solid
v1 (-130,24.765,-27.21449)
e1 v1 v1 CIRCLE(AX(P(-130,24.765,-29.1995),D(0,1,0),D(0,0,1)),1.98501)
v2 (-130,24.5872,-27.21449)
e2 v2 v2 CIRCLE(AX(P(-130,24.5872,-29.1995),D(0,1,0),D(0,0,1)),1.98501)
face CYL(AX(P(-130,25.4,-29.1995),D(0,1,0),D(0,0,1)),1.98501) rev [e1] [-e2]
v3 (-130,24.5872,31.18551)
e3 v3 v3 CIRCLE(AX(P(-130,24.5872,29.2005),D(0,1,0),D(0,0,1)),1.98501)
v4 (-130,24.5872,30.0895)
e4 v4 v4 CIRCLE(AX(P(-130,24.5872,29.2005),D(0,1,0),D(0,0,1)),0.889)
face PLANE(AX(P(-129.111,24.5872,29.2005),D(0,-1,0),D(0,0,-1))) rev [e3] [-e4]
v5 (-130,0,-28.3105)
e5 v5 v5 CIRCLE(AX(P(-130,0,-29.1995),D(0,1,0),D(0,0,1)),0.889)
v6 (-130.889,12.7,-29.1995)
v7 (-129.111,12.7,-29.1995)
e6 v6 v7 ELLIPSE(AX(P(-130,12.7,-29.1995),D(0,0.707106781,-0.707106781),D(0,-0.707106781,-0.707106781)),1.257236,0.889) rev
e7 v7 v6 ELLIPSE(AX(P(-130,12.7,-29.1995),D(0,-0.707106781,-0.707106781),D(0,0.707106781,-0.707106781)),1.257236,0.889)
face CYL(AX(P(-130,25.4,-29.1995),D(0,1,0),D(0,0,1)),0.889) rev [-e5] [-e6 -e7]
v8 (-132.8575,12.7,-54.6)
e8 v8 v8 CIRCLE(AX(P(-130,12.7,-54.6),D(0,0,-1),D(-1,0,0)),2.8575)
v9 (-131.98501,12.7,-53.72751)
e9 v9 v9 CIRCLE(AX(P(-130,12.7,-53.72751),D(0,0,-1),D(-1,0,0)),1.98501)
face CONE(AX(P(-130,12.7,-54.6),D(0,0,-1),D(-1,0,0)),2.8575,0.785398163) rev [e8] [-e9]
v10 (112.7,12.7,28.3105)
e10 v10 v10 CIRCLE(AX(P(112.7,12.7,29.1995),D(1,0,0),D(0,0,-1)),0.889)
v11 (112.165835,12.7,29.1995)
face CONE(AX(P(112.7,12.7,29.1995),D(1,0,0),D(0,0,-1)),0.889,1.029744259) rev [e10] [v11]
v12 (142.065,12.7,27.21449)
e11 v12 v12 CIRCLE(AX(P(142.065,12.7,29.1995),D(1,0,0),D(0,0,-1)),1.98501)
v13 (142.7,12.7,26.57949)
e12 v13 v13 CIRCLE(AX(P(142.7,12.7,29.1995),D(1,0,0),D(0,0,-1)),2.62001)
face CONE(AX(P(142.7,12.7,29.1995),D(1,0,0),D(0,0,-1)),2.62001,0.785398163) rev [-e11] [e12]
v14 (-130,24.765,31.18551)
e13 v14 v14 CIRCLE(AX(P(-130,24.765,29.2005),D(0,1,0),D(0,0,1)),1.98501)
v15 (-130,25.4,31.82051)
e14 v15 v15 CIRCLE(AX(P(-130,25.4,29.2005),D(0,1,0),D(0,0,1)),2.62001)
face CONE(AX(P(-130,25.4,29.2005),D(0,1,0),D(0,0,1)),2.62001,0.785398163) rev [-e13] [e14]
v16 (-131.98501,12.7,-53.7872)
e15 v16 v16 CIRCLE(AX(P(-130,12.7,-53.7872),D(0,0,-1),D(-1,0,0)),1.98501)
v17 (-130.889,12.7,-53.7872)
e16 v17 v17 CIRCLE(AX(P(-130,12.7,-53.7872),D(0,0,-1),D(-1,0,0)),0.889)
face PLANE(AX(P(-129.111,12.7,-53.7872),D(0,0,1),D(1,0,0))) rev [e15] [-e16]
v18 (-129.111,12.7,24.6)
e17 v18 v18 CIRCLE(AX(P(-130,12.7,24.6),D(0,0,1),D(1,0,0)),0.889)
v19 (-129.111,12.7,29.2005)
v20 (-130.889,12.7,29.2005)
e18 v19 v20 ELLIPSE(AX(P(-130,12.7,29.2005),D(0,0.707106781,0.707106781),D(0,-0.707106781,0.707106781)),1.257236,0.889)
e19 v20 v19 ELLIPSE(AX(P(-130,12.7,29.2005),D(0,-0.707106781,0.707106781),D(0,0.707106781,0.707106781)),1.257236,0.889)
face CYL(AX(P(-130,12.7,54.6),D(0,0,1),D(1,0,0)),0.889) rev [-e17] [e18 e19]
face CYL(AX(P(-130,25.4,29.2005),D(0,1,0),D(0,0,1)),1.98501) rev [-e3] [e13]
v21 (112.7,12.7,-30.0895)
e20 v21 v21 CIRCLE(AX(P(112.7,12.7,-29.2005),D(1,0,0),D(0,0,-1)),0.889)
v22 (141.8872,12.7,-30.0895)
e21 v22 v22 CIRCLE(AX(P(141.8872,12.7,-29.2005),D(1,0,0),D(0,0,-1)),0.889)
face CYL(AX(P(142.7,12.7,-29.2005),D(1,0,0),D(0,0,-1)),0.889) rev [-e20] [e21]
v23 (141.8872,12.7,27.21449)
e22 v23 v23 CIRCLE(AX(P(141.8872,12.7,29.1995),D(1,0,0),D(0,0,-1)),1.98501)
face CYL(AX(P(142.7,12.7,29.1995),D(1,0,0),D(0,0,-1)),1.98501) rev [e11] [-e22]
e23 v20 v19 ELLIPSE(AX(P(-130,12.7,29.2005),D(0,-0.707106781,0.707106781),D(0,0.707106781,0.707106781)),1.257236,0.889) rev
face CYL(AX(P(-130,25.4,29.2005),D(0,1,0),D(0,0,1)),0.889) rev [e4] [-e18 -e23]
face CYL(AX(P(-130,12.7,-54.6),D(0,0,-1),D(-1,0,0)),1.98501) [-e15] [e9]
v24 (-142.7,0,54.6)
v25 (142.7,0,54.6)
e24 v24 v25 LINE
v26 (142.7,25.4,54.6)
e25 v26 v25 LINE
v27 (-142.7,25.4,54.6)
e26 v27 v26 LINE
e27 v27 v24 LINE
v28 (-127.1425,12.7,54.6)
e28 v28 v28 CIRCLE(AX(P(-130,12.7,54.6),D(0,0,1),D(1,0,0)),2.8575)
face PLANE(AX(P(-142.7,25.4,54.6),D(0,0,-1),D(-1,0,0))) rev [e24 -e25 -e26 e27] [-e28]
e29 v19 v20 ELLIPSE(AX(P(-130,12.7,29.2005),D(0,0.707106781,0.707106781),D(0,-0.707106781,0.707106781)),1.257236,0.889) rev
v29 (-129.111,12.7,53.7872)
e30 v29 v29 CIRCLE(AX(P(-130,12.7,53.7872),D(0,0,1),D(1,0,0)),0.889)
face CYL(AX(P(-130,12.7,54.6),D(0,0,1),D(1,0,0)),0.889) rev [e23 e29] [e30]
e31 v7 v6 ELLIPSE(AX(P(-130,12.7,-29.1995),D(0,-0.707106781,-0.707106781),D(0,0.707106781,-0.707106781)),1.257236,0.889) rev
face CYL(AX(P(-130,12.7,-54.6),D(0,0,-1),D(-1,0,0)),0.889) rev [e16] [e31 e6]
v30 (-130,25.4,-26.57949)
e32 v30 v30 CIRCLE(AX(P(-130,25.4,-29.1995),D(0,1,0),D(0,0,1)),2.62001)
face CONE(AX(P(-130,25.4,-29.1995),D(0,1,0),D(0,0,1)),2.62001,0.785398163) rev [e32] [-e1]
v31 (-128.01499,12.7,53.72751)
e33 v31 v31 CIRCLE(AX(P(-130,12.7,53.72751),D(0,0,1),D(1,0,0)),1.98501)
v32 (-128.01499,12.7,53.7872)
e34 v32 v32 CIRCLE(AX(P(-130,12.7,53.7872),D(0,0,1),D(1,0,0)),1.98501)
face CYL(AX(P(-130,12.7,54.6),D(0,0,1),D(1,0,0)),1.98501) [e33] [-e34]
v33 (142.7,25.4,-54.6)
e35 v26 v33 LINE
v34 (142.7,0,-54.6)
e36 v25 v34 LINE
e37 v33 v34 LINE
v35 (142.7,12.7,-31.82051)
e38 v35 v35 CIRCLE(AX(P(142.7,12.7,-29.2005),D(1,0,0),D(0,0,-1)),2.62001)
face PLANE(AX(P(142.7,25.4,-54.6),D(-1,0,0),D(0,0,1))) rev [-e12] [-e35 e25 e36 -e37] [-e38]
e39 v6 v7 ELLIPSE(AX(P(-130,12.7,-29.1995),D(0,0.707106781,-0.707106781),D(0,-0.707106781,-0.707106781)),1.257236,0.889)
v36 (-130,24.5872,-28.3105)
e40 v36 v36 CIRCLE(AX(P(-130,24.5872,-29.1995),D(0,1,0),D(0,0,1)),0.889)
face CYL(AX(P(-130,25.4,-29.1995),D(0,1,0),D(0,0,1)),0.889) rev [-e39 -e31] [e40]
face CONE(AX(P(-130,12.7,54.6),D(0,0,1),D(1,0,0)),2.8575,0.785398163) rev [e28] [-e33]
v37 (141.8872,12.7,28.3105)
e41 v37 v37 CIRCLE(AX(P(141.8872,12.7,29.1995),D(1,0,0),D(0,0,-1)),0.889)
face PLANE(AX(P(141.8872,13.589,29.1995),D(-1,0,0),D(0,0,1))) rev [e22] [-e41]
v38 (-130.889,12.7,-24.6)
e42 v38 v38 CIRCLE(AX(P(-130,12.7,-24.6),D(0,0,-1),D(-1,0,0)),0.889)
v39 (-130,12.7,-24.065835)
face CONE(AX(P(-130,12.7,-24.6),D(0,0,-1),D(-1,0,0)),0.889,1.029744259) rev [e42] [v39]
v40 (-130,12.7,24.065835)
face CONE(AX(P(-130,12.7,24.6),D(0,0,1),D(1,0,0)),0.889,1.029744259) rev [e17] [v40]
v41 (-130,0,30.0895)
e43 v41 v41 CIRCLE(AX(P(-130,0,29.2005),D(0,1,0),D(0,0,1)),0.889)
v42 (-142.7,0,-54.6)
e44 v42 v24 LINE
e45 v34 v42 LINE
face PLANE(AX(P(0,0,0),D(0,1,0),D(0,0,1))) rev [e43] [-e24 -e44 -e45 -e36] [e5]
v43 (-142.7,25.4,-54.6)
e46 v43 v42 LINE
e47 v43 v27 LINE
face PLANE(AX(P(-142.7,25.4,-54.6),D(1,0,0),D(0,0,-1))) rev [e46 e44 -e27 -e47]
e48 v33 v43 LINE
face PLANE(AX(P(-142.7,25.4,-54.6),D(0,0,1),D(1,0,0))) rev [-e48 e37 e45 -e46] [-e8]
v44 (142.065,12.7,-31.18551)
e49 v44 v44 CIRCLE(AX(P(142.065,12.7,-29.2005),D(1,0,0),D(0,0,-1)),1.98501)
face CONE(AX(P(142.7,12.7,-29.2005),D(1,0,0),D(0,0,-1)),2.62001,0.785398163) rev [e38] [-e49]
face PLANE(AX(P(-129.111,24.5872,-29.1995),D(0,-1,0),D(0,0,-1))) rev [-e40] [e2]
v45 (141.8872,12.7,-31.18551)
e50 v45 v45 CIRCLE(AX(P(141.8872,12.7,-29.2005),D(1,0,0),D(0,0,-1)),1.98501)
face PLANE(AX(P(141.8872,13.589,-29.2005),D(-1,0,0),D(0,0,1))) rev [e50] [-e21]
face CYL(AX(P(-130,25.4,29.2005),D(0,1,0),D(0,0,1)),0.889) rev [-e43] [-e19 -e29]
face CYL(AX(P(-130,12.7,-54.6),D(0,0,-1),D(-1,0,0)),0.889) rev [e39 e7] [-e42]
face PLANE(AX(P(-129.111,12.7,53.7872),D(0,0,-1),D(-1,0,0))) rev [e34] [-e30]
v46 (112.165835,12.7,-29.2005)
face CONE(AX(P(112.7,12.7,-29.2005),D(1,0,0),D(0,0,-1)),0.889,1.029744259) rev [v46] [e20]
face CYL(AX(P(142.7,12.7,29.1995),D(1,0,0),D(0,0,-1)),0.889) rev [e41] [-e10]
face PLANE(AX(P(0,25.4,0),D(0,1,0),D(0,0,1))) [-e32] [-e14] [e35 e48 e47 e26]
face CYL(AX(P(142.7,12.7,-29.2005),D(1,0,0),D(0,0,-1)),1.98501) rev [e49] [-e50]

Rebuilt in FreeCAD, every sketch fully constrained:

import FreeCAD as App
import Part
import Sketcher
from FreeCAD import Vector
Q = App.Units.Quantity

doc = App.newDocument("Part")
body = doc.addObject("PartDesign::Body", "Body")

sketch1 = body.newObject("Sketcher::SketchObject", "Sketch")
sketch1.AttachmentSupport = (doc.getObject("XZ_Plane"), [""])
sketch1.MapMode = "FlatFace"
sketch1.addGeometry(Part.LineSegment(Vector(-142.7, -54.6, 0), Vector(-142.7, 54.6, 0)), False)
sketch1.addGeometry(Part.LineSegment(Vector(-142.7, 54.6, 0), Vector(142.7, 54.6, 0)), False)
sketch1.addGeometry(Part.LineSegment(Vector(142.7, 54.6, 0), Vector(142.7, -54.6, 0)), False)
sketch1.addGeometry(Part.LineSegment(Vector(142.7, -54.6, 0), Vector(-142.7, -54.6, 0)), False)
sketch1.addConstraint(Sketcher.Constraint("Coincident", 0, 2, 1, 1))
sketch1.addConstraint(Sketcher.Constraint("Coincident", 1, 2, 2, 1))
sketch1.addConstraint(Sketcher.Constraint("Coincident", 2, 2, 3, 1))
sketch1.addConstraint(Sketcher.Constraint("Coincident", 3, 2, 0, 1))
sketch1.addConstraint(Sketcher.Constraint("Vertical", 0))
sketch1.addConstraint(Sketcher.Constraint("Horizontal", 1))
sketch1.addConstraint(Sketcher.Constraint("Vertical", 2))
sketch1.addConstraint(Sketcher.Constraint("Horizontal", 3))
sketch1.addConstraint(Sketcher.Constraint("Symmetric", 0, 2, 2, 2, -1, 1))
sketch1.addConstraint(Sketcher.Constraint("DistanceX", 1, 1, 1, 2, 285.4))
sketch1.addConstraint(Sketcher.Constraint("DistanceY", 0, 1, 0, 2, 109.2))
pad1 = body.newObject("PartDesign::Pad", "Pad")
pad1.Profile = sketch1
pad1.Length = 25.4
pad1.Reversed = True

sketch2 = body.newObject("Sketcher::SketchObject", "Sketch001")
sketch2.AttachmentSupport = (doc.getObject("YZ_Plane"), [""])
sketch2.MapMode = "FlatFace"
sketch2.AttachmentOffset = App.Placement(Vector(0, 0, -130), App.Rotation())
sketch2.addGeometry(Part.LineSegment(Vector(12.7, 24.065835, 0), Vector(12.7, 54.6, 0)), False)
sketch2.addGeometry(Part.LineSegment(Vector(12.7, 54.6, 0), Vector(9.8425, 54.6, 0)), False)
sketch2.addGeometry(Part.LineSegment(Vector(9.8425, 54.6, 0), Vector(10.71499, 53.72751, 0)), False)
sketch2.addGeometry(Part.LineSegment(Vector(10.71499, 53.72751, 0), Vector(10.71499, 53.7872, 0)), False)
sketch2.addGeometry(Part.LineSegment(Vector(10.71499, 53.7872, 0), Vector(11.811, 53.7872, 0)), False)
sketch2.addGeometry(Part.LineSegment(Vector(11.811, 53.7872, 0), Vector(11.811, 24.6, 0)), False)
sketch2.addGeometry(Part.LineSegment(Vector(11.811, 24.6, 0), Vector(12.7, 24.065835, 0)), False)
sketch2.addGeometry(Part.LineSegment(Vector(12.7, 54.6, 0), Vector(12.7, 24.065835, 0)), True)
sketch2.addConstraint(Sketcher.Constraint("Coincident", 0, 2, 1, 1))
sketch2.addConstraint(Sketcher.Constraint("Coincident", 1, 2, 2, 1))
sketch2.addConstraint(Sketcher.Constraint("Coincident", 2, 2, 3, 1))
sketch2.addConstraint(Sketcher.Constraint("Coincident", 3, 2, 4, 1))
sketch2.addConstraint(Sketcher.Constraint("Coincident", 4, 2, 5, 1))
sketch2.addConstraint(Sketcher.Constraint("Coincident", 5, 2, 6, 1))
sketch2.addConstraint(Sketcher.Constraint("Coincident", 6, 2, 0, 1))
sketch2.addConstraint(Sketcher.Constraint("Vertical", 0))
sketch2.addConstraint(Sketcher.Constraint("Horizontal", 1))
sketch2.addConstraint(Sketcher.Constraint("Vertical", 3))
sketch2.addConstraint(Sketcher.Constraint("Horizontal", 4))
sketch2.addConstraint(Sketcher.Constraint("Vertical", 5))
sketch2.addConstraint(Sketcher.Constraint("Vertical", 7))
sketch2.addConstraint(Sketcher.Constraint("Coincident", 7, 1, 0, 2))
sketch2.addConstraint(Sketcher.Constraint("Equal", 0, 7))
sketch2.addConstraint(Sketcher.Constraint("Angle", 2, Q("-45 deg")))
sketch2.addConstraint(Sketcher.Constraint("Angle", 6, Q("-31 deg")))
sketch2.addConstraint(Sketcher.Constraint("DistanceY", 5, 2, 0, 2, 30.0))
sketch2.addConstraint(Sketcher.Constraint("DistanceX", -1, 1, 0, 2, 12.7))
sketch2.addConstraint(Sketcher.Constraint("DistanceY", -1, 1, 0, 2, 54.6))
sketch2.addConstraint(Sketcher.Constraint("DistanceX", 1, 2, 1, 1, 2.8575))
sketch2.addConstraint(Sketcher.Constraint("DistanceY", 5, 2, 5, 1, 29.1872))
sketch2.addConstraint(Sketcher.Constraint("DistanceX", -1, 1, 4, 2, 11.811))
sketch2.addConstraint(Sketcher.Constraint("DistanceX", 4, 1, 4, 2, 1.09601))
groove = body.newObject("PartDesign::Groove", "Groove")
groove.Profile = sketch2
groove.ReferenceAxis = (sketch2, ["Axis0"])
groove.Angle = 360
doc.recompute()

mirrored = body.newObject("PartDesign::Mirrored", "Mirrored")
mirrored.Originals = [groove]
mirrored.MirrorPlane = (doc.getObject("XY_Plane"), [""])
body.Tip = mirrored

sketch3 = body.newObject("Sketcher::SketchObject", "Sketch002")
sketch3.AttachmentSupport = (doc.getObject("XZ_Plane"), [""])
sketch3.MapMode = "FlatFace"
sketch3.AttachmentOffset = App.Placement(Vector(0, 0, 45.7), App.Rotation())
sketch3.addGeometry(Part.LineSegment(Vector(112.165835, 30, 0), Vector(142.7, 30, 0)), False)
sketch3.addGeometry(Part.LineSegment(Vector(142.7, 30, 0), Vector(142.7, 27.37999, 0)), False)
sketch3.addGeometry(Part.LineSegment(Vector(142.7, 27.37999, 0), Vector(142.065, 28.01499, 0)), False)
sketch3.addGeometry(Part.LineSegment(Vector(142.065, 28.01499, 0), Vector(141.8872, 28.01499, 0)), False)
sketch3.addGeometry(Part.LineSegment(Vector(141.8872, 28.01499, 0), Vector(141.8872, 29.111, 0)), False)
sketch3.addGeometry(Part.LineSegment(Vector(141.8872, 29.111, 0), Vector(112.7, 29.111, 0)), False)
sketch3.addGeometry(Part.LineSegment(Vector(112.7, 29.111, 0), Vector(112.165835, 30, 0)), False)
sketch3.addGeometry(Part.LineSegment(Vector(142.7, 30, 0), Vector(112.165835, 30, 0)), True)
sketch3.addConstraint(Sketcher.Constraint("Coincident", 0, 2, 1, 1))
sketch3.addConstraint(Sketcher.Constraint("Coincident", 1, 2, 2, 1))
sketch3.addConstraint(Sketcher.Constraint("Coincident", 2, 2, 3, 1))
sketch3.addConstraint(Sketcher.Constraint("Coincident", 3, 2, 4, 1))
sketch3.addConstraint(Sketcher.Constraint("Coincident", 4, 2, 5, 1))
sketch3.addConstraint(Sketcher.Constraint("Coincident", 5, 2, 6, 1))
sketch3.addConstraint(Sketcher.Constraint("Coincident", 6, 2, 0, 1))
sketch3.addConstraint(Sketcher.Constraint("Horizontal", 0))
sketch3.addConstraint(Sketcher.Constraint("Vertical", 1))
sketch3.addConstraint(Sketcher.Constraint("Horizontal", 3))
sketch3.addConstraint(Sketcher.Constraint("Vertical", 4))
sketch3.addConstraint(Sketcher.Constraint("Horizontal", 5))
sketch3.addConstraint(Sketcher.Constraint("Horizontal", 7))
sketch3.addConstraint(Sketcher.Constraint("Coincident", 7, 1, 0, 2))
sketch3.addConstraint(Sketcher.Constraint("Equal", 0, 7))
sketch3.addConstraint(Sketcher.Constraint("Angle", 2, Q("135 deg")))
sketch3.addConstraint(Sketcher.Constraint("Angle", 6, Q("121 deg")))
sketch3.addConstraint(Sketcher.Constraint("DistanceY", -1, 1, 0, 2, 30.0))
sketch3.addConstraint(Sketcher.Constraint("DistanceX", 5, 2, 0, 2, 30.0))
sketch3.addConstraint(Sketcher.Constraint("DistanceX", -1, 1, 0, 2, 142.7))
sketch3.addConstraint(Sketcher.Constraint("DistanceX", 3, 2, 3, 1, 0.1778))
sketch3.addConstraint(Sketcher.Constraint("DistanceX", 5, 2, 5, 1, 29.1872))
sketch3.addConstraint(Sketcher.Constraint("DistanceY", -1, 1, 4, 2, 29.111))
sketch3.addConstraint(Sketcher.Constraint("DistanceY", 1, 2, 1, 1, 2.62001))
groove2 = body.newObject("PartDesign::Groove", "Groove001")
groove2.Profile = sketch3
groove2.ReferenceAxis = (sketch3, ["Axis0"])
groove2.Angle = 360
doc.recompute()

datumline = body.newObject("PartDesign::Line", "DatumLine")
datumline.Placement = App.Placement(Vector(0, 0, 0), App.Rotation(Vector(0, 0, 1), Vector(0, 0.99990607, -0.013705904)))
linearpattern = body.newObject("PartDesign::LinearPattern", "LinearPattern")
linearpattern.Originals = [groove2]
linearpattern.Direction = (datumline, [""])
linearpattern.Mode = "offset"
linearpattern.Offset = 58.405486
linearpattern.Occurrences = 2
body.Tip = linearpattern

sketch4 = body.newObject("Sketcher::SketchObject", "Sketch003")
sketch4.AttachmentSupport = (doc.getObject("YZ_Plane"), [""])
sketch4.MapMode = "FlatFace"
sketch4.AttachmentOffset = App.Placement(Vector(0, 0, -130), App.Rotation())
sketch4.addGeometry(Part.LineSegment(Vector(-5.134165, -29.1995, 0), Vector(25.4, -29.1995, 0)), False)
sketch4.addGeometry(Part.LineSegment(Vector(25.4, -29.1995, 0), Vector(25.4, -26.57949, 0)), False)
sketch4.addGeometry(Part.LineSegment(Vector(25.4, -26.57949, 0), Vector(24.765, -27.21449, 0)), False)
sketch4.addGeometry(Part.LineSegment(Vector(24.765, -27.21449, 0), Vector(24.5872, -27.21449, 0)), False)
sketch4.addGeometry(Part.LineSegment(Vector(24.5872, -27.21449, 0), Vector(24.5872, -28.3105, 0)), False)
sketch4.addGeometry(Part.LineSegment(Vector(24.5872, -28.3105, 0), Vector(-4.6, -28.3105, 0)), False)
sketch4.addGeometry(Part.LineSegment(Vector(-4.6, -28.3105, 0), Vector(-5.134165, -29.1995, 0)), False)
sketch4.addGeometry(Part.LineSegment(Vector(25.4, -29.1995, 0), Vector(-5.134165, -29.1995, 0)), True)
sketch4.addConstraint(Sketcher.Constraint("Coincident", 0, 2, 1, 1))
sketch4.addConstraint(Sketcher.Constraint("Coincident", 1, 2, 2, 1))
sketch4.addConstraint(Sketcher.Constraint("Coincident", 2, 2, 3, 1))
sketch4.addConstraint(Sketcher.Constraint("Coincident", 3, 2, 4, 1))
sketch4.addConstraint(Sketcher.Constraint("Coincident", 4, 2, 5, 1))
sketch4.addConstraint(Sketcher.Constraint("Coincident", 5, 2, 6, 1))
sketch4.addConstraint(Sketcher.Constraint("Coincident", 6, 2, 0, 1))
sketch4.addConstraint(Sketcher.Constraint("Horizontal", 0))
sketch4.addConstraint(Sketcher.Constraint("Vertical", 1))
sketch4.addConstraint(Sketcher.Constraint("Horizontal", 3))
sketch4.addConstraint(Sketcher.Constraint("Vertical", 4))
sketch4.addConstraint(Sketcher.Constraint("Horizontal", 5))
sketch4.addConstraint(Sketcher.Constraint("Horizontal", 7))
sketch4.addConstraint(Sketcher.Constraint("Coincident", 7, 1, 0, 2))
sketch4.addConstraint(Sketcher.Constraint("Equal", 0, 7))
sketch4.addConstraint(Sketcher.Constraint("Angle", 2, Q("-135 deg")))
sketch4.addConstraint(Sketcher.Constraint("Angle", 6, Q("-121 deg")))
sketch4.addConstraint(Sketcher.Constraint("DistanceX", 5, 2, 0, 2, 30.0))
sketch4.addConstraint(Sketcher.Constraint("DistanceX", -1, 1, 0, 2, 25.4))
sketch4.addConstraint(Sketcher.Constraint("DistanceX", 3, 2, 3, 1, 0.1778))
sketch4.addConstraint(Sketcher.Constraint("DistanceX", 5, 2, 5, 1, 29.1872))
sketch4.addConstraint(Sketcher.Constraint("DistanceY", 0, 2, 4, 2, 0.889))
sketch4.addConstraint(Sketcher.Constraint("DistanceY", 1, 1, 1, 2, 2.62001))
sketch4.addConstraint(Sketcher.Constraint("DistanceY", 0, 2, -1, 1, 29.1995))
groove3 = body.newObject("PartDesign::Groove", "Groove002")
groove3.Profile = sketch4
groove3.ReferenceAxis = (sketch4, ["Axis0"])
groove3.Angle = 360
doc.recompute()

linearpattern2 = body.newObject("PartDesign::LinearPattern", "LinearPattern001")
linearpattern2.Originals = [groove3]
linearpattern2.Direction = (doc.getObject("Z_Axis"), [""])
linearpattern2.Mode = "offset"
linearpattern2.Offset = 58.4
linearpattern2.Occurrences = 2
body.Tip = linearpattern2
doc.recompute()

linearpattern3 = body.newObject("PartDesign::LinearPattern", "LinearPattern002")
linearpattern3.Originals = [groove2]
linearpattern3.Direction = (doc.getObject("Z_Axis"), [""])
linearpattern3.Mode = "offset"
linearpattern3.Offset = 58.4
linearpattern3.Occurrences = 2
linearpattern3.Reversed = True
body.Tip = linearpattern3

sketch5 = body.newObject("Sketcher::SketchObject", "Sketch004")
sketch5.AttachmentSupport = (doc.getObject("XZ_Plane"), [""])
sketch5.MapMode = "FlatFace"
sketch5.AttachmentOffset = App.Placement(Vector(0, 0, -12.7), App.Rotation())
sketch5.addGeometry(Part.LineSegment(Vector(112.165835, -29.2005, 0), Vector(142.7, -29.2005, 0)), False)
sketch5.addGeometry(Part.LineSegment(Vector(142.7, -29.2005, 0), Vector(142.7, -31.82051, 0)), False)
sketch5.addGeometry(Part.LineSegment(Vector(142.7, -31.82051, 0), Vector(142.065, -31.18551, 0)), False)
sketch5.addGeometry(Part.LineSegment(Vector(142.065, -31.18551, 0), Vector(141.8872, -31.18551, 0)), False)
sketch5.addGeometry(Part.LineSegment(Vector(141.8872, -31.18551, 0), Vector(141.8872, -30.0895, 0)), False)
sketch5.addGeometry(Part.LineSegment(Vector(141.8872, -30.0895, 0), Vector(112.7, -30.0895, 0)), False)
sketch5.addGeometry(Part.LineSegment(Vector(112.7, -30.0895, 0), Vector(112.165835, -29.2005, 0)), False)
sketch5.addGeometry(Part.LineSegment(Vector(142.7, -29.2005, 0), Vector(112.165835, -29.2005, 0)), True)
sketch5.addConstraint(Sketcher.Constraint("Coincident", 0, 2, 1, 1))
sketch5.addConstraint(Sketcher.Constraint("Coincident", 1, 2, 2, 1))
sketch5.addConstraint(Sketcher.Constraint("Coincident", 2, 2, 3, 1))
sketch5.addConstraint(Sketcher.Constraint("Coincident", 3, 2, 4, 1))
sketch5.addConstraint(Sketcher.Constraint("Coincident", 4, 2, 5, 1))
sketch5.addConstraint(Sketcher.Constraint("Coincident", 5, 2, 6, 1))
sketch5.addConstraint(Sketcher.Constraint("Coincident", 6, 2, 0, 1))
sketch5.addConstraint(Sketcher.Constraint("Horizontal", 0))
sketch5.addConstraint(Sketcher.Constraint("Vertical", 1))
sketch5.addConstraint(Sketcher.Constraint("Horizontal", 3))
sketch5.addConstraint(Sketcher.Constraint("Vertical", 4))
sketch5.addConstraint(Sketcher.Constraint("Horizontal", 5))
sketch5.addConstraint(Sketcher.Constraint("Horizontal", 7))
sketch5.addConstraint(Sketcher.Constraint("Coincident", 7, 1, 0, 2))
sketch5.addConstraint(Sketcher.Constraint("Equal", 0, 7))
sketch5.addConstraint(Sketcher.Constraint("Angle", 2, Q("135 deg")))
sketch5.addConstraint(Sketcher.Constraint("Angle", 6, Q("121 deg")))
sketch5.addConstraint(Sketcher.Constraint("DistanceX", 5, 2, 0, 2, 30.0))
sketch5.addConstraint(Sketcher.Constraint("DistanceX", -1, 1, 0, 2, 142.7))
sketch5.addConstraint(Sketcher.Constraint("DistanceX", 3, 2, 3, 1, 0.1778))
sketch5.addConstraint(Sketcher.Constraint("DistanceX", 5, 2, 5, 1, 29.1872))
sketch5.addConstraint(Sketcher.Constraint("DistanceY", 4, 2, 0, 2, 0.889))
sketch5.addConstraint(Sketcher.Constraint("DistanceY", 1, 2, 1, 1, 2.62001))
sketch5.addConstraint(Sketcher.Constraint("DistanceY", 0, 2, -1, 1, 29.2005))
groove4 = body.newObject("PartDesign::Groove", "Groove003")
groove4.Profile = sketch5
groove4.ReferenceAxis = (sketch5, ["Axis0"])
groove4.Angle = 360

doc.recompute()
